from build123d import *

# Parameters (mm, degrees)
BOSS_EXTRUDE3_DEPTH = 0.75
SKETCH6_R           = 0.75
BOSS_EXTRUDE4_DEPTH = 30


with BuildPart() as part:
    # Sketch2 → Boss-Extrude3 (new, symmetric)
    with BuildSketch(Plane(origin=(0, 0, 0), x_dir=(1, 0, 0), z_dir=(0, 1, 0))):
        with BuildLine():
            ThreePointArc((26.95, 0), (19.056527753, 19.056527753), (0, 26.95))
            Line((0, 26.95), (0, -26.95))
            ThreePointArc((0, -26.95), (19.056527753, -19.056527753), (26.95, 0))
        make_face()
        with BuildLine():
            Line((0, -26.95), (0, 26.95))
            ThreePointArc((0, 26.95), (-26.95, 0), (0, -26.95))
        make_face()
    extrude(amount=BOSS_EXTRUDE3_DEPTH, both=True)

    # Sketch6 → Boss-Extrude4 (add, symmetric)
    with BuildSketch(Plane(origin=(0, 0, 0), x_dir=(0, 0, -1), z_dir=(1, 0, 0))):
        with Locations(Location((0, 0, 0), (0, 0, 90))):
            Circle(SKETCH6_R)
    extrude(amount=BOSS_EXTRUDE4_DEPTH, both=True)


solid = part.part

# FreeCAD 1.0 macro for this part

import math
import FreeCAD as App
import Part
import Sketcher

V = App.Vector

doc = App.newDocument("Part")
body = doc.addObject("PartDesign::Body", "Body")

# Sketch on XZ plane
sketch1 = doc.addObject("Sketcher::SketchObject", "Sketch")
body.addObject(sketch1)
sketch1.AttachmentSupport = (doc.XZ_Plane, [""])
sketch1.MapMode = "FlatFace"
sketch1.addGeometry([
    Part.ArcOfCircle(Part.Circle(V(0, 0, 0), V(0, 0, 1), 27), math.radians(-90), math.radians(0)),
    Part.ArcOfCircle(Part.Circle(V(0, 0, 0), V(0, 0, 1), 27), math.radians(90), math.radians(270)),
    Part.ArcOfCircle(Part.Circle(V(0, 0, 0), V(0, 0, 1), 27), math.radians(0), math.radians(90)),
], False)
sketch1.addConstraint([
    Sketcher.Constraint("Tangent", 0, 1, 1, 2),
    Sketcher.Constraint("Tangent", 1, 1, 2, 2),
    Sketcher.Constraint("Tangent", 2, 1, 0, 2),
    Sketcher.Constraint("Coincident", 0, 3, -1, 1),
    Sketcher.Constraint("PointOnObject", 0, 1, -2),
    Sketcher.Constraint("PointOnObject", 1, 1, -2),
    Sketcher.Constraint("PointOnObject", 2, 1, -1),
    Sketcher.Constraint("Radius", 0, 26.95),
])
pad1 = doc.addObject("PartDesign::Pad", "Pad")
body.addObject(pad1)
pad1.Profile = sketch1
pad1.Length = 1.5
pad1.Midplane = True

# Sketch on YZ plane
sketch2 = doc.addObject("Sketcher::SketchObject", "Sketch001")
body.addObject(sketch2)
sketch2.AttachmentSupport = (doc.YZ_Plane, [""])
sketch2.MapMode = "FlatFace"
sketch2.addGeometry(Part.Circle(V(0, 0, 0), V(0, 0, 1), 0.8), False)
sketch2.addConstraint([
    Sketcher.Constraint("Coincident", 0, 3, -1, 1),
    Sketcher.Constraint("Diameter", 0, 1.5),
])
pad2 = doc.addObject("PartDesign::Pad", "Pad001")
body.addObject(pad2)
pad2.Profile = sketch2
pad2.Length = 60
pad2.Midplane = True

doc.recompute()
